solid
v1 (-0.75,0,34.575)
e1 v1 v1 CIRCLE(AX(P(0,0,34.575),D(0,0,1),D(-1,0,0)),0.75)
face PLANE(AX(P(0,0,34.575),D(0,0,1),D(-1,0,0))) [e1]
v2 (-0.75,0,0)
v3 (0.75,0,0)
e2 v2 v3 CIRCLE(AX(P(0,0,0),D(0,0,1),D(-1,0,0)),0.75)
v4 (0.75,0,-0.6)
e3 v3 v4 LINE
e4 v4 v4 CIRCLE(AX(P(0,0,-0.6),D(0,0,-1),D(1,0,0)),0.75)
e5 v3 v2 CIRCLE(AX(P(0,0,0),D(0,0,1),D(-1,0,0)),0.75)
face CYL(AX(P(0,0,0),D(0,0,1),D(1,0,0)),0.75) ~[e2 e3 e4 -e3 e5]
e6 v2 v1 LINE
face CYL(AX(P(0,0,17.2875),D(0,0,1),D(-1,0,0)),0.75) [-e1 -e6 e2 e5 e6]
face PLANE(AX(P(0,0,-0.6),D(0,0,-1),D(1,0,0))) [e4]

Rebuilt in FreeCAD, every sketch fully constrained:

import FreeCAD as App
import Part
import Sketcher

V = App.Vector

doc = App.newDocument("Part")
body = doc.addObject("PartDesign::Body", "Body")

# Sketch on XZ plane
sketch1 = doc.addObject("Sketcher::SketchObject", "Sketch")
body.addObject(sketch1)
sketch1.AttachmentSupport = (doc.XZ_Plane, [""])
sketch1.MapMode = "FlatFace"
sketch1.addGeometry([
    Part.LineSegment(V(-0.8, 34.6, 0), V(-0.8, 0, 0)),
    Part.LineSegment(V(-0.8, 0, 0), V(0, 0, 0)),
    Part.LineSegment(V(0, 0, 0), V(0, 34.6, 0)),
    Part.LineSegment(V(0, 34.6, 0), V(-0.8, 34.6, 0)),
], False)
sketch1.addConstraint([
    Sketcher.Constraint("Coincident", 0, 2, 1, 1),
    Sketcher.Constraint("Coincident", 1, 2, 2, 1),
    Sketcher.Constraint("Coincident", 2, 2, 3, 1),
    Sketcher.Constraint("Coincident", 3, 2, 0, 1),
    Sketcher.Constraint("Vertical", 0),
    Sketcher.Constraint("Horizontal", 1),
    Sketcher.Constraint("Vertical", 2),
    Sketcher.Constraint("Horizontal", 3),
    Sketcher.Constraint("Coincident", 1, 2, -1, 1),
    Sketcher.Constraint("DistanceX", 1, 1, 1, 2, 0.75),
    Sketcher.Constraint("DistanceY", 0, 2, 0, 1, 34.575),
])
revolution = doc.addObject("PartDesign::Revolution", "Revolution")
body.addObject(revolution)
revolution.Profile = sketch1
revolution.ReferenceAxis = (sketch1, ["V_Axis"])
revolution.Angle = 360

# Sketch on XY plane
sketch2 = doc.addObject("Sketcher::SketchObject", "Sketch001")
body.addObject(sketch2)
sketch2.AttachmentSupport = (doc.XY_Plane, [""])
sketch2.MapMode = "FlatFace"
sketch2.addGeometry(Part.Circle(V(0, 0, 0), V(0, 0, 1), 0.8), False)
sketch2.addConstraint([
    Sketcher.Constraint("Coincident", 0, 3, -1, 1),
    Sketcher.Constraint("Diameter", 0, 1.5),
])
pad1 = doc.addObject("PartDesign::Pad", "Pad")
body.addObject(pad1)
pad1.Profile = sketch2
pad1.Length = 0.6
pad1.Reversed = True

doc.recompute()
